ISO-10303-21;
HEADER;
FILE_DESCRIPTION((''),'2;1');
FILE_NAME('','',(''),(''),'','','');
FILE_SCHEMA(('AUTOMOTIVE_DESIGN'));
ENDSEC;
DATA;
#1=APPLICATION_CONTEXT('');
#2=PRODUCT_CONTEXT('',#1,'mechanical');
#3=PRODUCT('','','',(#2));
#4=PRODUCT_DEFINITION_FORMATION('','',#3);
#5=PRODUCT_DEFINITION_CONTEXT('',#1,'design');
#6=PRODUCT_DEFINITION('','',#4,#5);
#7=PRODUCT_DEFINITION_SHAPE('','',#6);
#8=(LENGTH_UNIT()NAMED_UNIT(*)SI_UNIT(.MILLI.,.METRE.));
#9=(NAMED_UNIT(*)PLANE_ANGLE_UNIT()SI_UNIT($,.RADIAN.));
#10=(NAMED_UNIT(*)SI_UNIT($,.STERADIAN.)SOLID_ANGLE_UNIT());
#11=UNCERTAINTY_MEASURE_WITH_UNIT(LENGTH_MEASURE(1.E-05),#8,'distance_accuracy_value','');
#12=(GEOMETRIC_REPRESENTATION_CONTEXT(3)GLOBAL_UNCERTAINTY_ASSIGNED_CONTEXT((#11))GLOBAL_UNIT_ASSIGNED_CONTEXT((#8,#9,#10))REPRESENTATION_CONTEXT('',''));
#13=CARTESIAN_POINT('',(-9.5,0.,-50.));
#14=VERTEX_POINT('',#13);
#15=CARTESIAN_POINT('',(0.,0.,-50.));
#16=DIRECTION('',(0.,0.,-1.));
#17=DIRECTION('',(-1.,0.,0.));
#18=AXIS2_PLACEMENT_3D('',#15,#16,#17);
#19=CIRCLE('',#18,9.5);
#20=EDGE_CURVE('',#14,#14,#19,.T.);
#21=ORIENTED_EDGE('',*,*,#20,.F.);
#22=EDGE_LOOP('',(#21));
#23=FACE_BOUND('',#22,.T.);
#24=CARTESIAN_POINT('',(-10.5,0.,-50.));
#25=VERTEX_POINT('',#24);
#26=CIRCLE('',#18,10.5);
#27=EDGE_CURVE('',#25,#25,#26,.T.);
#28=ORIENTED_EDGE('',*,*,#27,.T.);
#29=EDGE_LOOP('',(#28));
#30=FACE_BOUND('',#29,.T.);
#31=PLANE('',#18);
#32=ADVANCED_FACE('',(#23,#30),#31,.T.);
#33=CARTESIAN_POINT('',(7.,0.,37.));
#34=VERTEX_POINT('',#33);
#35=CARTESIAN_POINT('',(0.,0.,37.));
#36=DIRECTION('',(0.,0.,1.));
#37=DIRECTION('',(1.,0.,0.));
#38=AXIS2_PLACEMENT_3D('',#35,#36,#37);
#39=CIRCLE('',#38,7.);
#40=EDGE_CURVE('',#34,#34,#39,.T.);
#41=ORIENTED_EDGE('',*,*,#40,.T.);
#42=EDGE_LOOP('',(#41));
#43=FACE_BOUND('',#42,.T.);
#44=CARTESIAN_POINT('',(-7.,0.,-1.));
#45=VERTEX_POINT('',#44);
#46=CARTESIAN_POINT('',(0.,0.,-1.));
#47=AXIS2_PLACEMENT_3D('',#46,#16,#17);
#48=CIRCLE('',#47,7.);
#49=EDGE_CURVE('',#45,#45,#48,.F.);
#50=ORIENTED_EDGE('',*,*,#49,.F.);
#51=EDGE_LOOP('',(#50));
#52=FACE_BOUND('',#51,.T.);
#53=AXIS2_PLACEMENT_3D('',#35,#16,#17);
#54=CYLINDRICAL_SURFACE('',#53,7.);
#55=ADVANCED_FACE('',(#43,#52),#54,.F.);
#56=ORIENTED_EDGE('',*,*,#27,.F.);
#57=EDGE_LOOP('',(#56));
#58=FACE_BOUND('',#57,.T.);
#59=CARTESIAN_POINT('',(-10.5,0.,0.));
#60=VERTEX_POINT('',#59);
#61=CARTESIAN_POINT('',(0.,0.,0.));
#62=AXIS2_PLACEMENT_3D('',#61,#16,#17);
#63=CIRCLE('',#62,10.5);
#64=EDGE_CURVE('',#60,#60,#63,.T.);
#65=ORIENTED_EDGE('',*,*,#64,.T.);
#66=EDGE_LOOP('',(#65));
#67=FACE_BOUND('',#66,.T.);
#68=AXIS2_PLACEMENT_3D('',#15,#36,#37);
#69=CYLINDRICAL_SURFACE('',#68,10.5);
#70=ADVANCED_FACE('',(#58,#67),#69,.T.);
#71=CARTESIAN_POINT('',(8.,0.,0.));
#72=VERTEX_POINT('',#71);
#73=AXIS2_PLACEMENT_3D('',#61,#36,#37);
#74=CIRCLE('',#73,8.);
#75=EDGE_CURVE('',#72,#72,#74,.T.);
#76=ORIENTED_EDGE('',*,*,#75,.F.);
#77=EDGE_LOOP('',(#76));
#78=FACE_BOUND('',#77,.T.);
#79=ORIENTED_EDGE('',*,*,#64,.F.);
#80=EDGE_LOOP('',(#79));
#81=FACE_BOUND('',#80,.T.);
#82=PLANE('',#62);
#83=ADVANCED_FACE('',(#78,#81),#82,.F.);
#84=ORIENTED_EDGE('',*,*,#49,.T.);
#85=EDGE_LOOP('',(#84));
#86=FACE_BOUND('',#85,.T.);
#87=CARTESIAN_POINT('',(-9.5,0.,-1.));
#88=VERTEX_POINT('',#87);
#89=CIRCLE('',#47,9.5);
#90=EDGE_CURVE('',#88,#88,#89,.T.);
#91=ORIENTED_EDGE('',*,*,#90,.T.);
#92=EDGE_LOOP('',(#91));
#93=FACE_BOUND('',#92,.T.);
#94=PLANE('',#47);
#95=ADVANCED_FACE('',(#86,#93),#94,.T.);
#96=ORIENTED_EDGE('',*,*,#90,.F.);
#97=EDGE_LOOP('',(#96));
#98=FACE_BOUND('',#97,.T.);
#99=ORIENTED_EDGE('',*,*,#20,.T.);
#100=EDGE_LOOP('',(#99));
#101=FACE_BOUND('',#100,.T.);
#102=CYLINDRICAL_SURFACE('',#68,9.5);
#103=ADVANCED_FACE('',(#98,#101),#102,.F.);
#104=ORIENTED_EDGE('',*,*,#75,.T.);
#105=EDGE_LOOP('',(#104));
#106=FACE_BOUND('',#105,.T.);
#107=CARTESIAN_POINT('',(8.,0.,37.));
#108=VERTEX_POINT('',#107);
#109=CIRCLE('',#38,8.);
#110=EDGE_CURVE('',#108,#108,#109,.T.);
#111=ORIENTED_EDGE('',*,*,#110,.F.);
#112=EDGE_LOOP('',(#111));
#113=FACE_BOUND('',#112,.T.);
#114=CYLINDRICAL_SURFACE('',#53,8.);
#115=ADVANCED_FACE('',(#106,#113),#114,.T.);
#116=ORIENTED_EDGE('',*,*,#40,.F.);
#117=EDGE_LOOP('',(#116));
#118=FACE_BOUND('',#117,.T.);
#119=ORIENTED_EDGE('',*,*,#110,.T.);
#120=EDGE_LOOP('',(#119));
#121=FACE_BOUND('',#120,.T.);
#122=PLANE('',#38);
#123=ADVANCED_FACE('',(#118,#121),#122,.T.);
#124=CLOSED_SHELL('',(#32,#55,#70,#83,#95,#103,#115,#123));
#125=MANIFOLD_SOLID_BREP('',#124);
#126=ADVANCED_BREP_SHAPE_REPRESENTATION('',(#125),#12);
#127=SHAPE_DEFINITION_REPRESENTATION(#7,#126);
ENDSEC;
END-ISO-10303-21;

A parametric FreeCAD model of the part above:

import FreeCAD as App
import Part
import Sketcher


def faces_at(feature, points):
    """Names of the faces that lie closest to the given points."""
    faces = feature.Shape.Faces
    near = lambda p: min(range(len(faces)), key=lambda i: faces[i].distToShape(Part.Vertex(*p))[0])
    return sorted({f"Face{near(p) + 1}" for p in points})

doc = App.newDocument("Part")
body = doc.addObject("PartDesign::Body", "Body")

# Sketch on XY plane
sketch1 = body.newObject("Sketcher::SketchObject", "Sketch")
sketch1.AttachmentSupport = (doc.getObject("XY_Plane"), [""])
sketch1.MapMode = "FlatFace"
sketch1.addGeometry(Part.Circle(App.Vector(0, 0, 0), App.Vector(0, 0, 1), 8), False)
sketch1.addConstraint([
    Sketcher.Constraint("Coincident", 0, 3, -1, 1),
    Sketcher.Constraint("Diameter", 0, 16.0),
])
pad1 = body.newObject("PartDesign::Pad", "Pad")
pad1.Profile = sketch1
pad1.Length = 37

# Sketch on XY plane
sketch2 = body.newObject("Sketcher::SketchObject", "Sketch001")
sketch2.AttachmentSupport = (doc.getObject("XY_Plane"), [""])
sketch2.MapMode = "FlatFace"
sketch2.addGeometry(Part.Circle(App.Vector(0, 0, 0), App.Vector(0, 0, 1), 10), False)
sketch2.addConstraint([
    Sketcher.Constraint("Coincident", 0, 3, -1, 1),
    Sketcher.Constraint("Diameter", 0, 21.0),
])
pad2 = body.newObject("PartDesign::Pad", "Pad001")
pad2.Profile = sketch2
pad2.Length = 50
pad2.Reversed = True
doc.recompute()

thickness = body.newObject("PartDesign::Thickness", "Thickness")
thickness.Base = (pad2, faces_at(pad2, [(0, 0, 37)]))
thickness.Value = 1
thickness.Reversed = True
thickness.Join = "Intersection"

# Sketch on XY plane
sketch3 = body.newObject("Sketcher::SketchObject", "Sketch002")
sketch3.AttachmentSupport = (doc.getObject("XY_Plane"), [""])
sketch3.MapMode = "FlatFace"
sketch3.AttachmentOffset = App.Placement(App.Vector(0, 0, -50), App.Rotation())
sketch3.addGeometry(Part.Circle(App.Vector(0, 0, 0), App.Vector(0, 0, 1), 10), False)
sketch3.addConstraint([
    Sketcher.Constraint("Coincident", 0, 3, -1, 1),
    Sketcher.Constraint("Diameter", 0, 19.0),
])
pocket1 = body.newObject("PartDesign::Pocket", "Pocket")
pocket1.Profile = sketch3
pocket1.Type = "UpToFirst"
pocket1.Reversed = True

doc.recompute()
